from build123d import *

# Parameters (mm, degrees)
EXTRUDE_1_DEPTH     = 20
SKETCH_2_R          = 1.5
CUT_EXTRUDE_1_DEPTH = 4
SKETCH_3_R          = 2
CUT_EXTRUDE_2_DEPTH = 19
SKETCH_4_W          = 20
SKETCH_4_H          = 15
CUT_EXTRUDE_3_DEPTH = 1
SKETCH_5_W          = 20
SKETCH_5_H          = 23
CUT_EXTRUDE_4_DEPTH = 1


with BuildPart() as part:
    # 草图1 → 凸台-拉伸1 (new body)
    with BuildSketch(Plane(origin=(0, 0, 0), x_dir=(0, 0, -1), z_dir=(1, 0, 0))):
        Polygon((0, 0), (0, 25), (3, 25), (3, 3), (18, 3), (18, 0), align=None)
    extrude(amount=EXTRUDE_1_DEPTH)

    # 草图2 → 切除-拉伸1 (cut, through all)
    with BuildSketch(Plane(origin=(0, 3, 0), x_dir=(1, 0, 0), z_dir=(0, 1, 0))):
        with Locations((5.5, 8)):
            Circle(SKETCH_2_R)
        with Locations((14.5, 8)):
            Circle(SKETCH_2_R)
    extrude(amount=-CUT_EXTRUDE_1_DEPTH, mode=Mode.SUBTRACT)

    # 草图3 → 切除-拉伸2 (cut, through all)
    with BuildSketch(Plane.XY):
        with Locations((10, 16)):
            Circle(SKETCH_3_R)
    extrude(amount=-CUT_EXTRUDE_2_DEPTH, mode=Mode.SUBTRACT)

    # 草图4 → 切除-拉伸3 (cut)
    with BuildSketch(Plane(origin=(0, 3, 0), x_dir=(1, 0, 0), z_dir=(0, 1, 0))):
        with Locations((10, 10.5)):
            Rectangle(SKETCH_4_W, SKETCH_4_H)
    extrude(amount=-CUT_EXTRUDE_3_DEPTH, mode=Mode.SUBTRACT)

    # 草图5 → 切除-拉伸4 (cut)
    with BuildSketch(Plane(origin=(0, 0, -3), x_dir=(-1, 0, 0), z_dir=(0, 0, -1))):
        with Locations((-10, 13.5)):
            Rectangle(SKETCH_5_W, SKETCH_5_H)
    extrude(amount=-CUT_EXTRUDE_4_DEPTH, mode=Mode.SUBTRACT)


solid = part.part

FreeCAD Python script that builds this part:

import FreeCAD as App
import Part
import Sketcher

doc = App.newDocument("Part")
body = doc.addObject("PartDesign::Body", "Body")

# Sketch on YZ plane
sketch1 = body.newObject("Sketcher::SketchObject", "Sketch")
sketch1.AttachmentSupport = (doc.getObject("YZ_Plane"), [""])
sketch1.MapMode = "FlatFace"
sketch1.addGeometry([
    Part.LineSegment(App.Vector(25, 0, 0), App.Vector(0, 0, 0)),  # 0
    Part.LineSegment(App.Vector(0, 0, 0), App.Vector(0, -18, 0)),  # 1
    Part.LineSegment(App.Vector(0, -18, 0), App.Vector(3, -18, 0)),  # 2
    Part.LineSegment(App.Vector(3, -18, 0), App.Vector(3, -3, 0)),  # 3
    Part.LineSegment(App.Vector(3, -3, 0), App.Vector(25, -3, 0)),  # 4
    Part.LineSegment(App.Vector(25, -3, 0), App.Vector(25, 0, 0)),  # 5
], False)
sketch1.addConstraint([
    Sketcher.Constraint("Coincident", 0, 2, 1, 1),
    Sketcher.Constraint("Coincident", 1, 2, 2, 1),
    Sketcher.Constraint("Coincident", 2, 2, 3, 1),
    Sketcher.Constraint("Coincident", 3, 2, 4, 1),
    Sketcher.Constraint("Coincident", 4, 2, 5, 1),
    Sketcher.Constraint("Coincident", 5, 2, 0, 1),
    Sketcher.Constraint("Horizontal", 0),
    Sketcher.Constraint("Vertical", 1),
    Sketcher.Constraint("Horizontal", 2),
    Sketcher.Constraint("Vertical", 3),
    Sketcher.Constraint("Horizontal", 4),
    Sketcher.Constraint("Vertical", 5),
    Sketcher.Constraint("Coincident", 0, 2, -1, 1),
    Sketcher.Constraint("Equal", 2, 5),
    Sketcher.Constraint("DistanceX", 0, 2, 0, 1, 25.0),
    Sketcher.Constraint("DistanceX", 2, 1, 2, 2, 3.0),
    Sketcher.Constraint("DistanceY", 1, 2, 1, 1, 18.0),
])
pad1 = body.newObject("PartDesign::Pad", "Pad")
pad1.Profile = sketch1
pad1.Length = 20

# Sketch on XZ plane
sketch2 = body.newObject("Sketcher::SketchObject", "Sketch001")
sketch2.AttachmentSupport = (doc.getObject("XZ_Plane"), [""])
sketch2.MapMode = "FlatFace"
sketch2.AttachmentOffset = App.Placement(App.Vector(0, 0, -3), App.Rotation())
sketch2.addGeometry([
    Part.Circle(App.Vector(5.5, -8, 0), App.Vector(0, 0, 1), 1.5),
    Part.Circle(App.Vector(14.5, -8, 0), App.Vector(0, 0, 1), 1.5),
], False)
sketch2.addConstraint([
    Sketcher.Constraint("Equal", 0, 1),
    Sketcher.Constraint("Horizontal", 0, 3, 1, 3),
    Sketcher.Constraint("Diameter", 0, 3.0),
    Sketcher.Constraint("DistanceY", 0, 3, -1, 1, 8.0),
    Sketcher.Constraint("DistanceX", 0, 3, 1, 3, 9.0),
    Sketcher.Constraint("DistanceX", -1, 1, 0, 3, 5.5),
])
pocket1 = body.newObject("PartDesign::Pocket", "Pocket")
pocket1.Profile = sketch2
pocket1.Type = "ThroughAll"
pocket1.Reversed = True

# Sketch on XY plane
sketch3 = body.newObject("Sketcher::SketchObject", "Sketch002")
sketch3.AttachmentSupport = (doc.getObject("XY_Plane"), [""])
sketch3.MapMode = "FlatFace"
sketch3.addGeometry(Part.Circle(App.Vector(10, 16, 0), App.Vector(0, 0, 1), 2), False)
sketch3.addConstraint([
    Sketcher.Constraint("Diameter", 0, 4.0),
    Sketcher.Constraint("DistanceX", -1, 1, 0, 3, 10.0),
    Sketcher.Constraint("DistanceY", -1, 1, 0, 3, 16.0),
])
pocket2 = body.newObject("PartDesign::Pocket", "Pocket001")
pocket2.Profile = sketch3
pocket2.Type = "ThroughAll"

# Sketch on XZ plane
sketch4 = body.newObject("Sketcher::SketchObject", "Sketch003")
sketch4.AttachmentSupport = (doc.getObject("XZ_Plane"), [""])
sketch4.MapMode = "FlatFace"
sketch4.AttachmentOffset = App.Placement(App.Vector(0, 0, -3), App.Rotation())
sketch4.addGeometry([
    Part.LineSegment(App.Vector(0, -18, 0), App.Vector(0, -3, 0)),
    Part.LineSegment(App.Vector(0, -3, 0), App.Vector(20, -3, 0)),
    Part.LineSegment(App.Vector(20, -3, 0), App.Vector(20, -18, 0)),
    Part.LineSegment(App.Vector(20, -18, 0), App.Vector(0, -18, 0)),
], False)
sketch4.addConstraint([
    Sketcher.Constraint("Coincident", 0, 2, 1, 1),
    Sketcher.Constraint("Coincident", 1, 2, 2, 1),
    Sketcher.Constraint("Coincident", 2, 2, 3, 1),
    Sketcher.Constraint("Coincident", 3, 2, 0, 1),
    Sketcher.Constraint("Vertical", 0),
    Sketcher.Constraint("Horizontal", 1),
    Sketcher.Constraint("Vertical", 2),
    Sketcher.Constraint("Horizontal", 3),
    Sketcher.Constraint("PointOnObject", 0, 2, -2),
    Sketcher.Constraint("DistanceX", 1, 1, 1, 2, 20.0),
    Sketcher.Constraint("DistanceY", 0, 1, 0, 2, 15.0),
    Sketcher.Constraint("DistanceY", 0, 2, -1, 1, 3.0),
])
pocket3 = body.newObject("PartDesign::Pocket", "Pocket002")
pocket3.Profile = sketch4
pocket3.Length = 1
pocket3.Reversed = True

# Sketch on XY plane
sketch5 = body.newObject("Sketcher::SketchObject", "Sketch004")
sketch5.AttachmentSupport = (doc.getObject("XY_Plane"), [""])
sketch5.MapMode = "FlatFace"
sketch5.AttachmentOffset = App.Placement(App.Vector(0, 0, -3), App.Rotation())
sketch5.addGeometry([
    Part.LineSegment(App.Vector(20, 25, 0), App.Vector(20, 2, 0)),
    Part.LineSegment(App.Vector(20, 2, 0), App.Vector(0, 2, 0)),
    Part.LineSegment(App.Vector(0, 2, 0), App.Vector(0, 25, 0)),
    Part.LineSegment(App.Vector(0, 25, 0), App.Vector(20, 25, 0)),
], False)
sketch5.addConstraint([
    Sketcher.Constraint("Coincident", 0, 2, 1, 1),
    Sketcher.Constraint("Coincident", 1, 2, 2, 1),
    Sketcher.Constraint("Coincident", 2, 2, 3, 1),
    Sketcher.Constraint("Coincident", 3, 2, 0, 1),
    Sketcher.Constraint("Vertical", 0),
    Sketcher.Constraint("Horizontal", 1),
    Sketcher.Constraint("Vertical", 2),
    Sketcher.Constraint("Horizontal", 3),
    Sketcher.Constraint("PointOnObject", 1, 2, -2),
    Sketcher.Constraint("DistanceX", 1, 2, 1, 1, 20.0),
    Sketcher.Constraint("DistanceY", 0, 2, 0, 1, 23.0),
    Sketcher.Constraint("DistanceY", -1, 1, 0, 2, 2.0),
])
pocket4 = body.newObject("PartDesign::Pocket", "Pocket003")
pocket4.Profile = sketch5
pocket4.Length = 1
pocket4.Reversed = True

doc.recompute()
